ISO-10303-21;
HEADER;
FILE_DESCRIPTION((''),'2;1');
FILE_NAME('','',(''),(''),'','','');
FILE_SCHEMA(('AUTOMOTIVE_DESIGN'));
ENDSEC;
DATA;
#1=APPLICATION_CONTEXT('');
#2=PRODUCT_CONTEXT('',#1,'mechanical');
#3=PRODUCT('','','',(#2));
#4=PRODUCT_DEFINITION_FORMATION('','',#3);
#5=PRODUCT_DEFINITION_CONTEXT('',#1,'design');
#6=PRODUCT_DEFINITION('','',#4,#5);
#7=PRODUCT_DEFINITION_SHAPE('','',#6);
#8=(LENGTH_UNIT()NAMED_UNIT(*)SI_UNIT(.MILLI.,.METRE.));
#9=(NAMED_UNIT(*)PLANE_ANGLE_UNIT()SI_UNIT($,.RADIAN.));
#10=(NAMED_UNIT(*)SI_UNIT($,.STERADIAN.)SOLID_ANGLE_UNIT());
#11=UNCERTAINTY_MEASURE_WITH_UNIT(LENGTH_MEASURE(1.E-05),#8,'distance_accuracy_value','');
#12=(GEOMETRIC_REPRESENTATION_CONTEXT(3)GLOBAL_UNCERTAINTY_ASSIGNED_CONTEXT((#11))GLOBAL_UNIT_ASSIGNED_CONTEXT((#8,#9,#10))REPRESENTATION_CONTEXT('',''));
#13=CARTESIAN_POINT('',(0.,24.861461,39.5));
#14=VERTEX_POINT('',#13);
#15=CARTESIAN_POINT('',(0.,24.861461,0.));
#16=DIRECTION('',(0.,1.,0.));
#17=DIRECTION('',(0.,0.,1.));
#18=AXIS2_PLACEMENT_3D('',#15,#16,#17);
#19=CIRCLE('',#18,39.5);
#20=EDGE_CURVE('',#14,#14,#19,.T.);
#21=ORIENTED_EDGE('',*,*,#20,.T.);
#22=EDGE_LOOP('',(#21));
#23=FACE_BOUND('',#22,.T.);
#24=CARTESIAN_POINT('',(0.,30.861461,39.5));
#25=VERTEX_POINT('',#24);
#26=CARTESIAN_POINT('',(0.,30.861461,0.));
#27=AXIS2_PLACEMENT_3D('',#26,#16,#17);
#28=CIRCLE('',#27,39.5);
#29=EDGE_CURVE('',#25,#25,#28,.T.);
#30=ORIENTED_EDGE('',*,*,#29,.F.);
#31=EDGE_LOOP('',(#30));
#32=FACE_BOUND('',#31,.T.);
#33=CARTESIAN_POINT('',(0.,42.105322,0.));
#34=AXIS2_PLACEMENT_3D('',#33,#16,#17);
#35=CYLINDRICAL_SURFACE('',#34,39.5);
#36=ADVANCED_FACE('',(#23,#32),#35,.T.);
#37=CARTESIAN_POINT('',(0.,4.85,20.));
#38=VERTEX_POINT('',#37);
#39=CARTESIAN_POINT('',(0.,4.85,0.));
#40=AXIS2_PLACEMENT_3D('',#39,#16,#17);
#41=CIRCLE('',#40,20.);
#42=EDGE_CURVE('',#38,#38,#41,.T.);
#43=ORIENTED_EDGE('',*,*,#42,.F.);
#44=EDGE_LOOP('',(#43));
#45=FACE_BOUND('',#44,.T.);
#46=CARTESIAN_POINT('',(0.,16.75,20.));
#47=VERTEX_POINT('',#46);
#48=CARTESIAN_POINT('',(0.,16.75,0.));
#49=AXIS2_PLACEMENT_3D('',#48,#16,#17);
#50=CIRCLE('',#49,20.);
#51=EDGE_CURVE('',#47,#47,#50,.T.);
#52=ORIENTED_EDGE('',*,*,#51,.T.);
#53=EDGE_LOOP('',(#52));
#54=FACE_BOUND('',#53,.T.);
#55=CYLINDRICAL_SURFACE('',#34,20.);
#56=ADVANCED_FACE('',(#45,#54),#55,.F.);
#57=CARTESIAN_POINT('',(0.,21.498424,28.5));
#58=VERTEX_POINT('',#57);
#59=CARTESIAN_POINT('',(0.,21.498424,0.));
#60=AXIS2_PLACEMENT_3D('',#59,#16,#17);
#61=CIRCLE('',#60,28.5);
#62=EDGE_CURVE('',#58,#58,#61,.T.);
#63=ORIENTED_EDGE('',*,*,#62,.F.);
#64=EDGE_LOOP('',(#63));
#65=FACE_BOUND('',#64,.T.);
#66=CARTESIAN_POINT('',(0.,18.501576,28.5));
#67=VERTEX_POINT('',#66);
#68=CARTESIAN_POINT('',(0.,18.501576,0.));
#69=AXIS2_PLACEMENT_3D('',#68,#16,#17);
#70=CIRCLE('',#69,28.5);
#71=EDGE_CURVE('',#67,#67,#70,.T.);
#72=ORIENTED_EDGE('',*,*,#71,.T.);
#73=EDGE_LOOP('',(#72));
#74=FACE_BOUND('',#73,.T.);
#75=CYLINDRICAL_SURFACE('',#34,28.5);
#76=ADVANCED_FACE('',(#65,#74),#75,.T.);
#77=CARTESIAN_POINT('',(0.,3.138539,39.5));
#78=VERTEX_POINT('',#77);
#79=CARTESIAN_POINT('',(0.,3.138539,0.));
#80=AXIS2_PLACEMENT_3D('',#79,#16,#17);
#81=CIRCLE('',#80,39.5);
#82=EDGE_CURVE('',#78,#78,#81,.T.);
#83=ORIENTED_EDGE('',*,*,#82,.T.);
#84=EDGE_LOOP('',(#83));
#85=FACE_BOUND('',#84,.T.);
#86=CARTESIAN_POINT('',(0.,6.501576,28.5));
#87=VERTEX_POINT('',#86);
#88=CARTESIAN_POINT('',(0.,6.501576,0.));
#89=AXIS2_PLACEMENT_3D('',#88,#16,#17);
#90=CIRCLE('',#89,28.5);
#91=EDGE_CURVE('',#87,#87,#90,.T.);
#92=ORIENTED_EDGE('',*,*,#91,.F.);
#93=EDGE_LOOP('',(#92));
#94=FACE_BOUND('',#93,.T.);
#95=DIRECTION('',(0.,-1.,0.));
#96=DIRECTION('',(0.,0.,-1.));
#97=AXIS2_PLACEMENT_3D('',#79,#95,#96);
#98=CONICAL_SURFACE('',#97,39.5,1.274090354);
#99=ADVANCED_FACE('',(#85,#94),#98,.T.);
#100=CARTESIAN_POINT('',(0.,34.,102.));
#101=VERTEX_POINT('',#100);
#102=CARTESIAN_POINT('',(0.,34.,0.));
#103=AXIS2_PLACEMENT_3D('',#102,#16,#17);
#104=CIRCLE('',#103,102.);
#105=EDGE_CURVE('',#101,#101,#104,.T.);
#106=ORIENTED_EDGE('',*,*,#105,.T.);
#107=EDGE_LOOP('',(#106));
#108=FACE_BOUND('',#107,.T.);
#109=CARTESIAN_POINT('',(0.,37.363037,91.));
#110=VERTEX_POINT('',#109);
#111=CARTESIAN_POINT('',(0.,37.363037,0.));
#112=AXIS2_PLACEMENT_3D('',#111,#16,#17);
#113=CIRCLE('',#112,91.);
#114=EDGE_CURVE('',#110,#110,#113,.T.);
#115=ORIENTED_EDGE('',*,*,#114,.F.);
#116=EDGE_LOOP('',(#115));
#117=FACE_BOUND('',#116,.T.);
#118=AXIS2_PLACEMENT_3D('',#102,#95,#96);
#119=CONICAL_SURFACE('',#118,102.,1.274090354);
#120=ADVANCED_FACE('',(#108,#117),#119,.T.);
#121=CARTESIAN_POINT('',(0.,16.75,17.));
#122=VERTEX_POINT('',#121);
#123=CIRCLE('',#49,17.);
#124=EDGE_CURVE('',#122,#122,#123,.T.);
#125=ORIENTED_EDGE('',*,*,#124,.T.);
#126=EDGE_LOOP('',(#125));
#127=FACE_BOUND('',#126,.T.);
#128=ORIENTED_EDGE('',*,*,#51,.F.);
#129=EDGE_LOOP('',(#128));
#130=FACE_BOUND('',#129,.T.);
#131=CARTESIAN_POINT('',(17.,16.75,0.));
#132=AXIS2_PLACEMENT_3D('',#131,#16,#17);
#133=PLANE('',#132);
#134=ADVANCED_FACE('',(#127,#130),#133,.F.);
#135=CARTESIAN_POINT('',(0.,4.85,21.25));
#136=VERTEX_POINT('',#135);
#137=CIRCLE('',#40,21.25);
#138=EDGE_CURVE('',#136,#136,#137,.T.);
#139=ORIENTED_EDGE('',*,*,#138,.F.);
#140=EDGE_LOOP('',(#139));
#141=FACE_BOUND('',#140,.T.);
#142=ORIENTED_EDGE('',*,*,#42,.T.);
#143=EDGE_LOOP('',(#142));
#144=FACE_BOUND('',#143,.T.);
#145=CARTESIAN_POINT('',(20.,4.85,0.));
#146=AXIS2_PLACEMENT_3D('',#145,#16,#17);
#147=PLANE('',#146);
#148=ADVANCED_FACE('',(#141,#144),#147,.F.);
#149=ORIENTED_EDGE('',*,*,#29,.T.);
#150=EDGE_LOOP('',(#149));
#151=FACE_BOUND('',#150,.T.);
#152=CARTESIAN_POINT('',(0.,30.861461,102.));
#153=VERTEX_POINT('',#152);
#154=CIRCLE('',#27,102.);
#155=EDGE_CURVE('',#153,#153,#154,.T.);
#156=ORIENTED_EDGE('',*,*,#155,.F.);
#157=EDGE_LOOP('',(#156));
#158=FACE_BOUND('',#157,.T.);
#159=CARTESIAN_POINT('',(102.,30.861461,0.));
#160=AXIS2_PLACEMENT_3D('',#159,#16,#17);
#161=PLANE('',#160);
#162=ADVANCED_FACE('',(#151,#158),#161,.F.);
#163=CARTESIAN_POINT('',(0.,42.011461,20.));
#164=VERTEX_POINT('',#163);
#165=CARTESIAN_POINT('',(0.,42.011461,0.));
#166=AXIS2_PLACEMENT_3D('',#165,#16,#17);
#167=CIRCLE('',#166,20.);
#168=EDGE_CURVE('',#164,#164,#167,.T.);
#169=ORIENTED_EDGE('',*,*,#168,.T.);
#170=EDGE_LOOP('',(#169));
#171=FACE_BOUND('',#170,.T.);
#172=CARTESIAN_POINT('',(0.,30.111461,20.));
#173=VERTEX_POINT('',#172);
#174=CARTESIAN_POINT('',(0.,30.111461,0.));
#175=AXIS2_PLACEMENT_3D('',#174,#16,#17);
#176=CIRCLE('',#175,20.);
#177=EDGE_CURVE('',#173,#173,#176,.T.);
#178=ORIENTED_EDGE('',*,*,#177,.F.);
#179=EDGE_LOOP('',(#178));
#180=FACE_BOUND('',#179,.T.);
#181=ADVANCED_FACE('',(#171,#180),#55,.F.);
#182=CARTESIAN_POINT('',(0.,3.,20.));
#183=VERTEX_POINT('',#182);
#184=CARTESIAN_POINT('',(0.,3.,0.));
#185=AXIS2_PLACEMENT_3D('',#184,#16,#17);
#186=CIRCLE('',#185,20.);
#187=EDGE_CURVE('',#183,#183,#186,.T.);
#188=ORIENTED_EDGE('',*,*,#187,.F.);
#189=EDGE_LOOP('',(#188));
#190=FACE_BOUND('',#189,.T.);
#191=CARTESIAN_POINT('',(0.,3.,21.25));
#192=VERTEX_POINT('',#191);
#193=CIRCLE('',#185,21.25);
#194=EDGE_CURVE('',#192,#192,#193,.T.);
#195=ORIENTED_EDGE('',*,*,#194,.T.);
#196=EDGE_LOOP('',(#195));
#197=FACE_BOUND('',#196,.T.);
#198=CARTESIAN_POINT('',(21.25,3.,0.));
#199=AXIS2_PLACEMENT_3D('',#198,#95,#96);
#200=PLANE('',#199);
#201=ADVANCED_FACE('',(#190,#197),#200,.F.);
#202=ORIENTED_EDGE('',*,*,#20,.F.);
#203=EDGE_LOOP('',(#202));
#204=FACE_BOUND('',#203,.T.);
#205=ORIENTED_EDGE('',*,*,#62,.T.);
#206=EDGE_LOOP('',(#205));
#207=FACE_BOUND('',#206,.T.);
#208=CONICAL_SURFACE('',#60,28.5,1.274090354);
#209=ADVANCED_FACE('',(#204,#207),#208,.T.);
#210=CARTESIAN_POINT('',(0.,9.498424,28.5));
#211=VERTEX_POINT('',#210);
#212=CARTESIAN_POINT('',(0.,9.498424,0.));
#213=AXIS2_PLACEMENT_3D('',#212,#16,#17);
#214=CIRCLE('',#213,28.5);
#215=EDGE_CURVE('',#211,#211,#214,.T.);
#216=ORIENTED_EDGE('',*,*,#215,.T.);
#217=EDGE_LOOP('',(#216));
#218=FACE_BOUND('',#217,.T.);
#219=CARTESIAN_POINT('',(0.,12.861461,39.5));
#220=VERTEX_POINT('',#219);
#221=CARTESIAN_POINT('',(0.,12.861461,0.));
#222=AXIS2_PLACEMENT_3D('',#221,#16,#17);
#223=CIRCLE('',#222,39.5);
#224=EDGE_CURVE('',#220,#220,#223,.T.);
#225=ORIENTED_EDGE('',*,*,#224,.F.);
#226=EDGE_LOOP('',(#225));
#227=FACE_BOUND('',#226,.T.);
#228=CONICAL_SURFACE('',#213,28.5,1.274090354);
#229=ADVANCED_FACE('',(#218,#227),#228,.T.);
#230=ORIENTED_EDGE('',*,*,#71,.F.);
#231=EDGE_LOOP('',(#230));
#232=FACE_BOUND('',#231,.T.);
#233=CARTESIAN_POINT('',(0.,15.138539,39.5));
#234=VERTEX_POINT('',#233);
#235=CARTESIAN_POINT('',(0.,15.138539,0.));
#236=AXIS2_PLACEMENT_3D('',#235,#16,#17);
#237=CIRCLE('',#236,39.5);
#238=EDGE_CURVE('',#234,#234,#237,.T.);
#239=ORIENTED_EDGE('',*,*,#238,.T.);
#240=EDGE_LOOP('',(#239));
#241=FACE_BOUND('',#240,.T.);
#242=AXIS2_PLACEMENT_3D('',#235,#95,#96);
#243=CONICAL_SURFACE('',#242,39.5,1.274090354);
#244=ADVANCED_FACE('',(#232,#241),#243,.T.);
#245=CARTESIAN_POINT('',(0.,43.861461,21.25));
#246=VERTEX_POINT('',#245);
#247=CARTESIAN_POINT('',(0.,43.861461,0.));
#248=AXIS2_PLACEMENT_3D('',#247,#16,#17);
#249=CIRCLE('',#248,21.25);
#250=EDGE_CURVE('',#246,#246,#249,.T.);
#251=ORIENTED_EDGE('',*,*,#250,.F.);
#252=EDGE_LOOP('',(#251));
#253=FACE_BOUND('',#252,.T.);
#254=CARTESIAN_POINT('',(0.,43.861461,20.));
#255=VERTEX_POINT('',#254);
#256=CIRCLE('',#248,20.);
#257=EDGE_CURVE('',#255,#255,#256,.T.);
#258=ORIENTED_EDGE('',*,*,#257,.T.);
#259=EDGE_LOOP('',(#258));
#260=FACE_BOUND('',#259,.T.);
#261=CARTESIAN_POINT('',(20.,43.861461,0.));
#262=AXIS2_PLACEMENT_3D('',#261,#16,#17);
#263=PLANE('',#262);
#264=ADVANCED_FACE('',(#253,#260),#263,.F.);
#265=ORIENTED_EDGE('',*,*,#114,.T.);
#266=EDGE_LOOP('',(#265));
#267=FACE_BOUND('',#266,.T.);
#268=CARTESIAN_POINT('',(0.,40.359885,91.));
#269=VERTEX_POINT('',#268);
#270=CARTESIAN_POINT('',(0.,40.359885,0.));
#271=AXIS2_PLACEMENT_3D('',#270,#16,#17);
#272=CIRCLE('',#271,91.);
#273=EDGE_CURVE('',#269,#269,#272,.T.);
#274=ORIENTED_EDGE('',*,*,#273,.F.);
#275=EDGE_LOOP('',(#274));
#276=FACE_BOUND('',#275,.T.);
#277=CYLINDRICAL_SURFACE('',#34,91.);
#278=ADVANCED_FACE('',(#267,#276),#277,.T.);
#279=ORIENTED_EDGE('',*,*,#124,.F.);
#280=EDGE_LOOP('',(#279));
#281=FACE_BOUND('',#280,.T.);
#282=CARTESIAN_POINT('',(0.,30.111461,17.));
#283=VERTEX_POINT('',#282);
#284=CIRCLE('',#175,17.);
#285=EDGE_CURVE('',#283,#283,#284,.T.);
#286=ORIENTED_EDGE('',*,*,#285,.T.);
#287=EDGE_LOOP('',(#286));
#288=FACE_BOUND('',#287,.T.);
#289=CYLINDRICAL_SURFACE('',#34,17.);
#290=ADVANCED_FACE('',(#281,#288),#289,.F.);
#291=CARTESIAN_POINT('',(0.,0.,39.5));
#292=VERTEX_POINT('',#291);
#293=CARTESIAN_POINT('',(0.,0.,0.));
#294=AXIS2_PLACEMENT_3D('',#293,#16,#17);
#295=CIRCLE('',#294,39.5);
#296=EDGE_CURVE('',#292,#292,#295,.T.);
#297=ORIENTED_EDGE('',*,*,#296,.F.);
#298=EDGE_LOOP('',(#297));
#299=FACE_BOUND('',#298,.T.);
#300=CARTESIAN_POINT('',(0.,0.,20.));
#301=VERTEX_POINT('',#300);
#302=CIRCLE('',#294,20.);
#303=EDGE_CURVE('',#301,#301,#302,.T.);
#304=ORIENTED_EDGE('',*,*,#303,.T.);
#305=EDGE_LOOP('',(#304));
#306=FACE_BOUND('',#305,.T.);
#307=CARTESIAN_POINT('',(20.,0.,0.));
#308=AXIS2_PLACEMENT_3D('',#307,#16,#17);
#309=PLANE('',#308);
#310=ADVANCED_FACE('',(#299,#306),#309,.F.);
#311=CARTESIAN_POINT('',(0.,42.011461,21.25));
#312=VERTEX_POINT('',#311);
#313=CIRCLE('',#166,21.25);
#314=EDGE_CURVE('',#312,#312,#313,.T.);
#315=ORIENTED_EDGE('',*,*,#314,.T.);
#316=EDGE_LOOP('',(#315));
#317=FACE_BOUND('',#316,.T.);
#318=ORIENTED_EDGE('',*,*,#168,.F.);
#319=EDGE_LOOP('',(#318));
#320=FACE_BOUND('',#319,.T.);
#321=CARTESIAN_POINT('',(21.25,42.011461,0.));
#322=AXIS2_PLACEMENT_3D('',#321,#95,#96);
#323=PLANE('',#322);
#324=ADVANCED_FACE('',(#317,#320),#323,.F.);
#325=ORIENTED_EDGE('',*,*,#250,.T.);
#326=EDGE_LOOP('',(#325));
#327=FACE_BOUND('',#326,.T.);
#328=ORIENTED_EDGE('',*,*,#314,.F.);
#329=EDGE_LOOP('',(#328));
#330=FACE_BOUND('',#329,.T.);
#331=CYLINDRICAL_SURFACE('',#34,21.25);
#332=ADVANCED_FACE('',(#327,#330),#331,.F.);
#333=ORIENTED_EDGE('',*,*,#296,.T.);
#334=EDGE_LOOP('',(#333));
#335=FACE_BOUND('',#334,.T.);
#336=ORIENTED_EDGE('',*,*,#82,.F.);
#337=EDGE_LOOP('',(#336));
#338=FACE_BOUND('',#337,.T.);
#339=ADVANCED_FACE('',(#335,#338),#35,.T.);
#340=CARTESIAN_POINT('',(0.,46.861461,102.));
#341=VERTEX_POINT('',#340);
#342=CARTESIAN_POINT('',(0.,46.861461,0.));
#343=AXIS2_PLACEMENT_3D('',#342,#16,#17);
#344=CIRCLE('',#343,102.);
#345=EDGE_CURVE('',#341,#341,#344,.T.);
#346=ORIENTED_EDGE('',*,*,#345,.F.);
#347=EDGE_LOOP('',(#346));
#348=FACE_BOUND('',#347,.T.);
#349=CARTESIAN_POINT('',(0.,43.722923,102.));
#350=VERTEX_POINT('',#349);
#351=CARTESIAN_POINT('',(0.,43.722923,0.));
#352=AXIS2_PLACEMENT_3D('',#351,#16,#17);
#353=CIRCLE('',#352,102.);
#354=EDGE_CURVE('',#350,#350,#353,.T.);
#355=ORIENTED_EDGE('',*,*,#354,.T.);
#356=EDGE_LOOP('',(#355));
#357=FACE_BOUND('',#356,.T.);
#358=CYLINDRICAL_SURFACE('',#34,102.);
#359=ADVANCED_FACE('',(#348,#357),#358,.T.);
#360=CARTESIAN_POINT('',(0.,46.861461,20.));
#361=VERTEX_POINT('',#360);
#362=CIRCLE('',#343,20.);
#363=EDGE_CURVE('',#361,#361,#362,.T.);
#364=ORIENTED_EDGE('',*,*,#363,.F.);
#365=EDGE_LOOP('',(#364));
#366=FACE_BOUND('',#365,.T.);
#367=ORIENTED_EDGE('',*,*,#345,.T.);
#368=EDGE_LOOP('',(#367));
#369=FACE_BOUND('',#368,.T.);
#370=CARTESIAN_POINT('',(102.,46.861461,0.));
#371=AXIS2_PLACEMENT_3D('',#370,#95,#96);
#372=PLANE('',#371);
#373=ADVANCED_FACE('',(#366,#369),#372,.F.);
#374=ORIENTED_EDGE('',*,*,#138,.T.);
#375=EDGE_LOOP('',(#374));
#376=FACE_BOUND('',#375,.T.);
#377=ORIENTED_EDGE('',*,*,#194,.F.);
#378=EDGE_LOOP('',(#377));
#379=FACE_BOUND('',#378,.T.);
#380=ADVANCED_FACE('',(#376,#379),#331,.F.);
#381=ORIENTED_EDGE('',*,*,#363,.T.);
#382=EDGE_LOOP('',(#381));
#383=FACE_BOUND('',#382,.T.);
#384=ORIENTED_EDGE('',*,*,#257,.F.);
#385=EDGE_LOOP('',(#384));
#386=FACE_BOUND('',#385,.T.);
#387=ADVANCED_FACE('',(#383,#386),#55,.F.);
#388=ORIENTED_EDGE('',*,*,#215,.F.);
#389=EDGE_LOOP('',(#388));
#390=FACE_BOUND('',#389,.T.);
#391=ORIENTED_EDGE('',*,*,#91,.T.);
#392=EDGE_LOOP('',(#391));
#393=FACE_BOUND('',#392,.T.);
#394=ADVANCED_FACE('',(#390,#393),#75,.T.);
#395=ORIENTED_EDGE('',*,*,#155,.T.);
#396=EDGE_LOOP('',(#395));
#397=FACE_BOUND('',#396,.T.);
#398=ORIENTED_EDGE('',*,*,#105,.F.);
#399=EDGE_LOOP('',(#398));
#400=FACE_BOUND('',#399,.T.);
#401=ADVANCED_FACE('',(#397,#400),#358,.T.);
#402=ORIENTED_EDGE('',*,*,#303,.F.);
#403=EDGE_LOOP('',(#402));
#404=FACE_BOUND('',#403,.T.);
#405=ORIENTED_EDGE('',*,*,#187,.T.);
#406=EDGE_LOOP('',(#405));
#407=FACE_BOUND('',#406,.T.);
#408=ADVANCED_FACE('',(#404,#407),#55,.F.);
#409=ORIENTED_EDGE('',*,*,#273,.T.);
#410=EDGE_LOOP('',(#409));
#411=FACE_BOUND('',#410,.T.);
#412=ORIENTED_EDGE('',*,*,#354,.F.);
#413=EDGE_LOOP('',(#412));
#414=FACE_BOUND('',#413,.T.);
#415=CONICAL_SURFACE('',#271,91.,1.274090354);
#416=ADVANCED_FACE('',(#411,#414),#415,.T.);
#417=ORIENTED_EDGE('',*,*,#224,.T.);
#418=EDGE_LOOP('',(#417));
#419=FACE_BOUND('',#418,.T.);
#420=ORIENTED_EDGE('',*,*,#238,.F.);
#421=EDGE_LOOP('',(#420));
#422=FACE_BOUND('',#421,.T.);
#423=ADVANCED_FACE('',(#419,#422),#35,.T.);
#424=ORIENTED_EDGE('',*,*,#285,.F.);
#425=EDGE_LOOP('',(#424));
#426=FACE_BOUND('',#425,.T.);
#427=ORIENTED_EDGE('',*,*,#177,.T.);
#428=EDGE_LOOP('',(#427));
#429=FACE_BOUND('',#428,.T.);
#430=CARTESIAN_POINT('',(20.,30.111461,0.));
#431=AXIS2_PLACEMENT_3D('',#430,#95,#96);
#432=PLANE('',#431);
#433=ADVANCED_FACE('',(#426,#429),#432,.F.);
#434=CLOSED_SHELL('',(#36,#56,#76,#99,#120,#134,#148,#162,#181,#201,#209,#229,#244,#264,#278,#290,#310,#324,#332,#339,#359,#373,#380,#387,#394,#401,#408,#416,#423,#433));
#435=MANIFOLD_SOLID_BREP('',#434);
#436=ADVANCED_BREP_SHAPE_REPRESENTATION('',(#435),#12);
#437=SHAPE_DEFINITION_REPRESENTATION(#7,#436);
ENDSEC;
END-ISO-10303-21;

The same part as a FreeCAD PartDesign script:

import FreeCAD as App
import Part
import Sketcher

V = App.Vector
Q = App.Units.Quantity


def add_polygon(sketch, points):
    """Adds a closed chain of lines whose ends are joined by coincident constraints."""
    first, n = sketch.GeometryCount, len(points)
    for a, b in zip(points, points[1:] + points[:1]):
        sketch.addGeometry(Part.LineSegment(App.Vector(*a, 0), App.Vector(*b, 0)), False)
    for i in range(n):
        sketch.addConstraint(Sketcher.Constraint("Coincident", first + i, 2, first + (i + 1) % n, 1))

doc = App.newDocument("Part")
body = doc.addObject("PartDesign::Body", "Body")

# Sketch on XY plane
sketch1 = body.newObject("Sketcher::SketchObject", "Sketch")
sketch1.AttachmentSupport = (doc.getObject("XY_Plane"), [""])
sketch1.MapMode = "FlatFace"
add_polygon(sketch1, [(17, 30.1), (17, 16.8), (20, 16.8), (20, 4.8), (21.2, 4.8), (21.2, 3), (20, 3), (20, 0), (39.5, 0), (39.5, 3.1), (28.5, 6.5), (28.5, 9.5), (39.5, 12.9), (39.5, 15.1), (28.5, 18.5), (28.5, 21.5), (39.5, 24.9), (39.5, 30.9), (102, 30.9), (102, 34), (91, 37.4), (91, 40.4), (102, 43.7), (102, 46.9), (20, 46.9), (20, 43.9), (21.2, 43.9), (21.2, 42), (20, 42), (20, 30.1)])  # lines 0-29
sketch1.addConstraint([
    Sketcher.Constraint("Vertical", 0),
    Sketcher.Constraint("Horizontal", 1),
    Sketcher.Constraint("Vertical", 2),
    Sketcher.Constraint("Horizontal", 3),
    Sketcher.Constraint("Vertical", 4),
    Sketcher.Constraint("Horizontal", 5),
    Sketcher.Constraint("Vertical", 6),
    Sketcher.Constraint("Horizontal", 7),
    Sketcher.Constraint("Vertical", 8),
    Sketcher.Constraint("Vertical", 10),
    Sketcher.Constraint("Vertical", 12),
    Sketcher.Constraint("Vertical", 14),
    Sketcher.Constraint("Vertical", 16),
    Sketcher.Constraint("Horizontal", 17),
    Sketcher.Constraint("Vertical", 18),
    Sketcher.Constraint("Vertical", 20),
    Sketcher.Constraint("Vertical", 22),
    Sketcher.Constraint("Horizontal", 23),
    Sketcher.Constraint("Vertical", 24),
    Sketcher.Constraint("Horizontal", 25),
    Sketcher.Constraint("Vertical", 26),
    Sketcher.Constraint("Horizontal", 27),
    Sketcher.Constraint("Vertical", 28),
    Sketcher.Constraint("Horizontal", 29),
    Sketcher.Constraint("PointOnObject", 6, 2, -1),
    Sketcher.Constraint("Parallel", 9, 13),
    Sketcher.Constraint("Parallel", 11, 15),
    Sketcher.Constraint("Parallel", 13, 19),
    Sketcher.Constraint("Parallel", 15, 21),
    Sketcher.Constraint("Vertical", 2, 2, 5, 2),
    Sketcher.Constraint("Vertical", 8, 2, 11, 2),
    Sketcher.Constraint("Vertical", 10, 2, 13, 2),
    Sketcher.Constraint("Vertical", 12, 2, 15, 2),
    Sketcher.Constraint("Vertical", 18, 2, 21, 2),
    Sketcher.Constraint("Vertical", 6, 2, 23, 2),
    Sketcher.Constraint("Vertical", 4, 2, 25, 2),
    Sketcher.Constraint("Vertical", 24, 2, 27, 2),
    Sketcher.Constraint("Equal", 29, 6),
    Sketcher.Constraint("Equal", 10, 14),
    Sketcher.Constraint("Equal", 8, 18),
    Sketcher.Constraint("Equal", 14, 20),
    Sketcher.Constraint("Equal", 18, 22),
    Sketcher.Constraint("Equal", 6, 24),
    Sketcher.Constraint("Equal", 4, 26),
    Sketcher.Constraint("Equal", 2, 28),
    Sketcher.Constraint("Equal", 9, 11),
    Sketcher.Constraint("Equal", 15, 19),
    Sketcher.Constraint("DistanceX", 1, 1, 1, 2, 3.0),
    Sketcher.Constraint("DistanceX", 23, 2, 23, 1, 82.0),
    Sketcher.Constraint("DistanceY", 16, 1, 16, 2, 6.0),
    Sketcher.Constraint("Angle", 9, Q("163 deg")),
    Sketcher.Constraint("DistanceX", 7, 1, 7, 2, 19.5),
    Sketcher.Constraint("DistanceY", 2, 2, 2, 1, 11.9),
    Sketcher.Constraint("DistanceX", -1, 1, 0, 2, 17.0),
    Sketcher.Constraint("DistanceY", -1, 1, 18, 2, 34.0),
    Sketcher.Constraint("DistanceX", -1, 1, 19, 2, 91.0),
    Sketcher.Constraint("DistanceY", 8, 2, 12, 2, 12.0),
    Sketcher.Constraint("DistanceX", 3, 1, 3, 2, 1.25),
    Sketcher.Constraint("DistanceY", 4, 2, 4, 1, 1.85),
    Sketcher.Constraint("DistanceY", 0, 2, 0, 1, 13.361461),
])
revolution = body.newObject("PartDesign::Revolution", "Revolution")
revolution.Profile = sketch1
revolution.ReferenceAxis = (sketch1, ["V_Axis"])
revolution.Angle = 360

doc.recompute()
